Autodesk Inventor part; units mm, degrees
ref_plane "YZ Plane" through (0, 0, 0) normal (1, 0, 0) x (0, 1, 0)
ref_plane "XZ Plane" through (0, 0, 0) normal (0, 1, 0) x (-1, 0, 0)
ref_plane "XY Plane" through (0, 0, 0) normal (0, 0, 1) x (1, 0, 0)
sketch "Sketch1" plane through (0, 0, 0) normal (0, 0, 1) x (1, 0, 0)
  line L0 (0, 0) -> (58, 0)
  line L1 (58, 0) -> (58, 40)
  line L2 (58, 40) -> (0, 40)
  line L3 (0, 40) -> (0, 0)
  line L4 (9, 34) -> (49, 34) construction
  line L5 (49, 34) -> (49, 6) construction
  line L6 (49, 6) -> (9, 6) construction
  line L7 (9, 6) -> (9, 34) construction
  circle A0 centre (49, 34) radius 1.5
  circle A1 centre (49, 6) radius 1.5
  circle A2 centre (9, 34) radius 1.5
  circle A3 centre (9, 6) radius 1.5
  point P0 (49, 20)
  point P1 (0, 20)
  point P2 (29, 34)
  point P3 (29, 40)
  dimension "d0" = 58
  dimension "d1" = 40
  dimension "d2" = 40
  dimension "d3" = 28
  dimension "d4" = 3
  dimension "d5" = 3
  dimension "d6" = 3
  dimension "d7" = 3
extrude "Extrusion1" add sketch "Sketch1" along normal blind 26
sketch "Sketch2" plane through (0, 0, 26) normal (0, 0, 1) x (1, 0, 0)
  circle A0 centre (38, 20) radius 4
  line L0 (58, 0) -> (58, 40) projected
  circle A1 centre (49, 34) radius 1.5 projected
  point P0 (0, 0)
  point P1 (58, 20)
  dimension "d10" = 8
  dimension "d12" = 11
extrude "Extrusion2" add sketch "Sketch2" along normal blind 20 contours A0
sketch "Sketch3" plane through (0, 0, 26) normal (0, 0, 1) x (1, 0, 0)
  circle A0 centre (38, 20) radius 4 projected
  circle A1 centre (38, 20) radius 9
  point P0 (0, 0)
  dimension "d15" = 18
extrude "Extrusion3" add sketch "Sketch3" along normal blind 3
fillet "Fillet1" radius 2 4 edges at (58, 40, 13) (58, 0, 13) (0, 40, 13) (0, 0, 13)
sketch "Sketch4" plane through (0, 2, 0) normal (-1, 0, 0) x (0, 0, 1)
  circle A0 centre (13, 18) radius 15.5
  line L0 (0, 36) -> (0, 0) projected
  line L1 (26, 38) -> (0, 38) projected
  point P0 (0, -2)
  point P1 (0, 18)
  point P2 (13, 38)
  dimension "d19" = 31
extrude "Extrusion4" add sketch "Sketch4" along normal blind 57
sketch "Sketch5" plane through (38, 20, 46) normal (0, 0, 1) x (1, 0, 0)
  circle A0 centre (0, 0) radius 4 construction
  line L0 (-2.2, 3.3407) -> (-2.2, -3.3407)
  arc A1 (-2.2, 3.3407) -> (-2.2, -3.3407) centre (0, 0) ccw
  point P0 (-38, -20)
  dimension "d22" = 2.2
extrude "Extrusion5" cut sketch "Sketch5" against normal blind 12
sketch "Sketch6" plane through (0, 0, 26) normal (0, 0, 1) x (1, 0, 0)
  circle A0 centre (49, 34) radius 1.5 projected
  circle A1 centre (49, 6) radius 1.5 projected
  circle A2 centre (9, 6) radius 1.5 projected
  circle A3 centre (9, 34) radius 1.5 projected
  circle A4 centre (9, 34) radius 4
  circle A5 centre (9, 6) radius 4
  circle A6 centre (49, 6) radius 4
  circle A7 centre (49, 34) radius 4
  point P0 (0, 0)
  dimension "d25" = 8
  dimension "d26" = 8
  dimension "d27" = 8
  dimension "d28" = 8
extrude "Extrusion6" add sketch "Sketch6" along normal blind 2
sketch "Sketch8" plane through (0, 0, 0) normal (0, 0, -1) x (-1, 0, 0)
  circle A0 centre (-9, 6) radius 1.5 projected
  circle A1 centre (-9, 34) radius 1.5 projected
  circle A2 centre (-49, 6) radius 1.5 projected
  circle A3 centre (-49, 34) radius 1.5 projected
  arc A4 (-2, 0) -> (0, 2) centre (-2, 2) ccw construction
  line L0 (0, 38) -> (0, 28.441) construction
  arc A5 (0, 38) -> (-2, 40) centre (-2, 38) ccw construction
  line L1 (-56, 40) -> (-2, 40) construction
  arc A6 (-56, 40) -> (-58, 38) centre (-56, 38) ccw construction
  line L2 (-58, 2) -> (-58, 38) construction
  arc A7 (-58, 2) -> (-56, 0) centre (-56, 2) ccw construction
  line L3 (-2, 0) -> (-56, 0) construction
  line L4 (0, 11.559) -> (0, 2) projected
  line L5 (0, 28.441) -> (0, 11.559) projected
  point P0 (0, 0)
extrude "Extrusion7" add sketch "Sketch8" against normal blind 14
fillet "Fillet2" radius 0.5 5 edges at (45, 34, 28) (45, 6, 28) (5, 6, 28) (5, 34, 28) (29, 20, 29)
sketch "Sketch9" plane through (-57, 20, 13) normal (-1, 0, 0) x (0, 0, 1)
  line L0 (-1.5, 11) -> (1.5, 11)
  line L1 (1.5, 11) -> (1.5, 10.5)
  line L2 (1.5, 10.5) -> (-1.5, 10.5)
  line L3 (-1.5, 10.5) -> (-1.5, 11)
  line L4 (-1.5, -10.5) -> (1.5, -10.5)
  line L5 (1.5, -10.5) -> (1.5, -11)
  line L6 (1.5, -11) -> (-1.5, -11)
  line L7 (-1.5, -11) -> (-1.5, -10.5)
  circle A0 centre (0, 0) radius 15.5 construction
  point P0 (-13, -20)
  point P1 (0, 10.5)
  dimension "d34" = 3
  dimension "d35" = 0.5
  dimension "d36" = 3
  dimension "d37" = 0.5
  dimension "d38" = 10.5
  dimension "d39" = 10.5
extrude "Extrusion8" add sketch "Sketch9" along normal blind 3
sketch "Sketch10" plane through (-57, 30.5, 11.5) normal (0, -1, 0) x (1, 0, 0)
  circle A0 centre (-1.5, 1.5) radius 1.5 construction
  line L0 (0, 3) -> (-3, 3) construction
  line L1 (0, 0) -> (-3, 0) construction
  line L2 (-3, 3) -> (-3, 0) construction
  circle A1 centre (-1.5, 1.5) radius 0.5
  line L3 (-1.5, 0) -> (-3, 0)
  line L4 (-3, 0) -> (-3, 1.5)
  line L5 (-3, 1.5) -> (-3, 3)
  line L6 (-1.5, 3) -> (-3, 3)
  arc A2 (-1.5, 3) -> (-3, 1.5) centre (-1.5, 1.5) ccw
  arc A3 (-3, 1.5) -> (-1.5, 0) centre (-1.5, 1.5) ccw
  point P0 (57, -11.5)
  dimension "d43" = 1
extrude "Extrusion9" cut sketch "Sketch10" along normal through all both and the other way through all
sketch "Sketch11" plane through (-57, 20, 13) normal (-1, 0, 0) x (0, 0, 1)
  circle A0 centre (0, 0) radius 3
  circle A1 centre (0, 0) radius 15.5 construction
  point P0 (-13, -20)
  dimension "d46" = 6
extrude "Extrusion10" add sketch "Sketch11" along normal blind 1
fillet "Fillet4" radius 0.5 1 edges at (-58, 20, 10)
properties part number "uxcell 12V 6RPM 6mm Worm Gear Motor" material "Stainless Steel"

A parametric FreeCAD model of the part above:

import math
import FreeCAD as App
import Part
import Sketcher

V = App.Vector
Q = App.Units.Quantity


def edges_at(feature, points):
    """Names of the edges that pass closest to the given points."""
    edges = feature.Shape.Edges
    near = lambda p: min(range(len(edges)), key=lambda i: edges[i].distToShape(Part.Vertex(*p))[0])
    return sorted({f"Edge{near(p) + 1}" for p in points})


def add_polygon(sketch, points):
    """Adds a closed chain of lines whose ends are joined by coincident constraints."""
    first, n = sketch.GeometryCount, len(points)
    for a, b in zip(points, points[1:] + points[:1]):
        sketch.addGeometry(Part.LineSegment(App.Vector(*a, 0), App.Vector(*b, 0)), False)
    for i in range(n):
        sketch.addConstraint(Sketcher.Constraint("Coincident", first + i, 2, first + (i + 1) % n, 1))

doc = App.newDocument("Part")
body = doc.addObject("PartDesign::Body", "Body")

sketch1 = doc.addObject("Sketcher::SketchObject", "Sketch")
body.addObject(sketch1)
sketch1.AttachmentSupport = (doc.XY_Plane, [""])
sketch1.MapMode = "FlatFace"
add_polygon(sketch1, [(0, 40), (0, 0), (58, 0), (58, 40)])
sketch1.addGeometry(Part.Circle(V(9, 6, 0), V(0, 0, 1), 1.5), False)
sketch1.addGeometry(Part.Circle(V(49, 6, 0), V(0, 0, 1), 1.5), False)
sketch1.addGeometry(Part.Circle(V(9, 34, 0), V(0, 0, 1), 1.5), False)
sketch1.addGeometry(Part.Circle(V(49, 34, 0), V(0, 0, 1), 1.5), False)
sketch1.addConstraint(Sketcher.Constraint("Vertical", 0))
sketch1.addConstraint(Sketcher.Constraint("Horizontal", 1))
sketch1.addConstraint(Sketcher.Constraint("Vertical", 2))
sketch1.addConstraint(Sketcher.Constraint("Horizontal", 3))
sketch1.addConstraint(Sketcher.Constraint("Coincident", 0, 2, -1, 1))
sketch1.addConstraint(Sketcher.Constraint("Equal", 4, 5))
sketch1.addConstraint(Sketcher.Constraint("Equal", 5, 6))
sketch1.addConstraint(Sketcher.Constraint("Equal", 6, 7))
sketch1.addConstraint(Sketcher.Constraint("Horizontal", 4, 3, 5, 3))
sketch1.addConstraint(Sketcher.Constraint("Horizontal", 6, 3, 7, 3))
sketch1.addConstraint(Sketcher.Constraint("Vertical", 4, 3, 6, 3))
sketch1.addConstraint(Sketcher.Constraint("Vertical", 5, 3, 7, 3))
sketch1.addConstraint(Sketcher.Constraint("Diameter", 4, Q("3 mm")))
sketch1.addConstraint(Sketcher.Constraint("DistanceX", 1, 1, 1, 2, Q("58 mm")))
sketch1.addConstraint(Sketcher.Constraint("DistanceY", 0, 2, 0, 1, Q("40 mm")))
sketch1.addConstraint(Sketcher.Constraint("DistanceX", 4, 3, 5, 3, Q("40 mm")))
sketch1.addConstraint(Sketcher.Constraint("DistanceY", 4, 3, 6, 3, Q("28 mm")))
sketch1.addConstraint(Sketcher.Constraint("DistanceX", -1, 1, 4, 3, Q("9 mm")))
sketch1.addConstraint(Sketcher.Constraint("DistanceY", -1, 1, 4, 3, Q("6 mm")))
pad1 = doc.addObject("PartDesign::Pad", "Pad")
body.addObject(pad1)
pad1.Profile = sketch1
pad1.Length = 26

sketch2 = doc.addObject("Sketcher::SketchObject", "Sketch001")
body.addObject(sketch2)
sketch2.AttachmentSupport = (doc.XY_Plane, [""])
sketch2.MapMode = "FlatFace"
sketch2.AttachmentOffset = App.Placement(V(0, 0, 26), App.Rotation())
sketch2.addGeometry(Part.Circle(V(38, 20, 0), V(0, 0, 1), 4), False)
sketch2.addConstraint(Sketcher.Constraint("Diameter", 0, Q("8 mm")))
sketch2.addConstraint(Sketcher.Constraint("DistanceX", -1, 1, 0, 3, Q("38 mm")))
sketch2.addConstraint(Sketcher.Constraint("DistanceY", -1, 1, 0, 3, Q("20 mm")))
pad2 = doc.addObject("PartDesign::Pad", "Pad001")
body.addObject(pad2)
pad2.Profile = sketch2
pad2.Length = 20

sketch3 = doc.addObject("Sketcher::SketchObject", "Sketch002")
body.addObject(sketch3)
sketch3.AttachmentSupport = (doc.XY_Plane, [""])
sketch3.MapMode = "FlatFace"
sketch3.AttachmentOffset = App.Placement(V(0, 0, 26), App.Rotation())
sketch3.addGeometry(Part.Circle(V(38, 20, 0), V(0, 0, 1), 9), False)
sketch3.addGeometry(Part.Circle(V(38, 20, 0), V(0, 0, 1), 4), False)
sketch3.addConstraint(Sketcher.Constraint("Coincident", 1, 3, 0, 3))
sketch3.addConstraint(Sketcher.Constraint("Diameter", 0, Q("18 mm")))
sketch3.addConstraint(Sketcher.Constraint("Diameter", 1, Q("8 mm")))
sketch3.addConstraint(Sketcher.Constraint("DistanceX", -1, 1, 0, 3, Q("38 mm")))
sketch3.addConstraint(Sketcher.Constraint("DistanceY", -1, 1, 0, 3, Q("20 mm")))
pad3 = doc.addObject("PartDesign::Pad", "Pad002")
body.addObject(pad3)
pad3.Profile = sketch3
pad3.Length = 3
doc.recompute()

fillet = doc.addObject("PartDesign::Fillet", "Fillet")
body.addObject(fillet)
fillet.Base = (pad3, edges_at(pad3, [
    (58, 40, 13),
    (58, 0, 13),
    (0, 40, 13),
    (0, 0, 13),
]))
fillet.Radius = 2

sketch4 = doc.addObject("Sketcher::SketchObject", "Sketch003")
body.addObject(sketch4)
sketch4.AttachmentSupport = (doc.YZ_Plane, [""])
sketch4.MapMode = "FlatFace"
sketch4.addGeometry(Part.Circle(V(20, 13, 0), V(0, 0, 1), 15.5), False)
sketch4.addConstraint(Sketcher.Constraint("Diameter", 0, Q("31 mm")))
sketch4.addConstraint(Sketcher.Constraint("DistanceX", -1, 1, 0, 3, Q("20 mm")))
sketch4.addConstraint(Sketcher.Constraint("DistanceY", -1, 1, 0, 3, Q("13 mm")))
pad4 = doc.addObject("PartDesign::Pad", "Pad003")
body.addObject(pad4)
pad4.Profile = sketch4
pad4.Length = 57
pad4.Reversed = True

sketch5 = doc.addObject("Sketcher::SketchObject", "Sketch004")
body.addObject(sketch5)
sketch5.AttachmentSupport = (doc.XY_Plane, [""])
sketch5.MapMode = "FlatFace"
sketch5.AttachmentOffset = App.Placement(V(0, 0, 46), App.Rotation())
sketch5.addGeometry(Part.LineSegment(V(35.8, 16.6593, 0), V(35.8, 23.3407, 0)), False)
sketch5.addGeometry(Part.ArcOfCircle(Part.Circle(V(38, 20, 0), V(0, 0, 1), 4.000035), math.radians(123.366687), math.radians(236.633313)), False)
sketch5.addConstraint(Sketcher.Constraint("Coincident", 0, 1, 1, 2))
sketch5.addConstraint(Sketcher.Constraint("Coincident", 1, 1, 0, 2))
sketch5.addConstraint(Sketcher.Constraint("Vertical", 0))
sketch5.addConstraint(Sketcher.Constraint("Radius", 1, Q("4 mm")))
sketch5.addConstraint(Sketcher.Constraint("DistanceX", 0, 1, 1, 3, Q("2.2 mm")))
sketch5.addConstraint(Sketcher.Constraint("DistanceX", -1, 1, 1, 3, Q("38 mm")))
sketch5.addConstraint(Sketcher.Constraint("DistanceY", -1, 1, 1, 3, Q("20 mm")))
pocket1 = doc.addObject("PartDesign::Pocket", "Pocket")
body.addObject(pocket1)
pocket1.Profile = sketch5
pocket1.Length = 12

sketch6 = doc.addObject("Sketcher::SketchObject", "Sketch005")
body.addObject(sketch6)
sketch6.AttachmentSupport = (doc.XY_Plane, [""])
sketch6.MapMode = "FlatFace"
sketch6.AttachmentOffset = App.Placement(V(0, 0, 26), App.Rotation())
sketch6.addGeometry(Part.Circle(V(9, 34, 0), V(0, 0, 1), 4), False)
sketch6.addGeometry(Part.Circle(V(9, 34, 0), V(0, 0, 1), 1.5), False)
sketch6.addGeometry(Part.Circle(V(9, 6, 0), V(0, 0, 1), 4), False)
sketch6.addGeometry(Part.Circle(V(9, 6, 0), V(0, 0, 1), 1.5), False)
sketch6.addGeometry(Part.Circle(V(49, 6, 0), V(0, 0, 1), 4), False)
sketch6.addGeometry(Part.Circle(V(49, 6, 0), V(0, 0, 1), 1.5), False)
sketch6.addGeometry(Part.Circle(V(49, 34, 0), V(0, 0, 1), 4), False)
sketch6.addGeometry(Part.Circle(V(49, 34, 0), V(0, 0, 1), 1.5), False)
sketch6.addConstraint(Sketcher.Constraint("Coincident", 1, 3, 0, 3))
sketch6.addConstraint(Sketcher.Constraint("Coincident", 3, 3, 2, 3))
sketch6.addConstraint(Sketcher.Constraint("Coincident", 5, 3, 4, 3))
sketch6.addConstraint(Sketcher.Constraint("Coincident", 7, 3, 6, 3))
sketch6.addConstraint(Sketcher.Constraint("Equal", 0, 2))
sketch6.addConstraint(Sketcher.Constraint("Equal", 1, 3))
sketch6.addConstraint(Sketcher.Constraint("Equal", 2, 4))
sketch6.addConstraint(Sketcher.Constraint("Equal", 3, 5))
sketch6.addConstraint(Sketcher.Constraint("Equal", 4, 6))
sketch6.addConstraint(Sketcher.Constraint("Equal", 5, 7))
sketch6.addConstraint(Sketcher.Constraint("Horizontal", 3, 3, 4, 3))
sketch6.addConstraint(Sketcher.Constraint("Horizontal", 1, 3, 6, 3))
sketch6.addConstraint(Sketcher.Constraint("Vertical", 1, 3, 2, 3))
sketch6.addConstraint(Sketcher.Constraint("Vertical", 5, 3, 6, 3))
sketch6.addConstraint(Sketcher.Constraint("Diameter", 0, Q("8 mm")))
sketch6.addConstraint(Sketcher.Constraint("Diameter", 1, Q("3 mm")))
sketch6.addConstraint(Sketcher.Constraint("DistanceX", -1, 1, 0, 3, Q("9 mm")))
sketch6.addConstraint(Sketcher.Constraint("DistanceY", -1, 1, 0, 3, Q("34 mm")))
sketch6.addConstraint(Sketcher.Constraint("DistanceY", -1, 1, 2, 3, Q("6 mm")))
sketch6.addConstraint(Sketcher.Constraint("DistanceX", -1, 1, 4, 3, Q("49 mm")))
pad5 = doc.addObject("PartDesign::Pad", "Pad004")
body.addObject(pad5)
pad5.Profile = sketch6
pad5.Length = 2

sketch7 = doc.addObject("Sketcher::SketchObject", "Sketch006")
body.addObject(sketch7)
sketch7.AttachmentSupport = (doc.XY_Plane, [""])
sketch7.MapMode = "FlatFace"
sketch7.addGeometry(Part.Circle(V(9, 6, 0), V(0, 0, 1), 1.5), False)
sketch7.addGeometry(Part.Circle(V(9, 34, 0), V(0, 0, 1), 1.5), False)
sketch7.addGeometry(Part.Circle(V(49, 6, 0), V(0, 0, 1), 1.5), False)
sketch7.addGeometry(Part.Circle(V(49, 34, 0), V(0, 0, 1), 1.5), False)
sketch7.addConstraint(Sketcher.Constraint("Equal", 0, 1))
sketch7.addConstraint(Sketcher.Constraint("Equal", 1, 2))
sketch7.addConstraint(Sketcher.Constraint("Equal", 2, 3))
sketch7.addConstraint(Sketcher.Constraint("Horizontal", 0, 3, 2, 3))
sketch7.addConstraint(Sketcher.Constraint("Horizontal", 1, 3, 3, 3))
sketch7.addConstraint(Sketcher.Constraint("Vertical", 0, 3, 1, 3))
sketch7.addConstraint(Sketcher.Constraint("Vertical", 2, 3, 3, 3))
sketch7.addConstraint(Sketcher.Constraint("Diameter", 0, Q("3 mm")))
sketch7.addConstraint(Sketcher.Constraint("DistanceX", -1, 1, 0, 3, Q("9 mm")))
sketch7.addConstraint(Sketcher.Constraint("DistanceY", -1, 1, 0, 3, Q("6 mm")))
sketch7.addConstraint(Sketcher.Constraint("DistanceY", -1, 1, 1, 3, Q("34 mm")))
sketch7.addConstraint(Sketcher.Constraint("DistanceX", -1, 1, 2, 3, Q("49 mm")))
pad6 = doc.addObject("PartDesign::Pad", "Pad005")
body.addObject(pad6)
pad6.Profile = sketch7
pad6.Length = 14
doc.recompute()

fillet2 = doc.addObject("PartDesign::Fillet", "Fillet001")
body.addObject(fillet2)
fillet2.Base = (pad6, edges_at(pad6, [
    (45, 34, 28),
    (45, 6, 28),
    (5, 6, 28),
    (5, 34, 28),
    (29, 20, 29),
]))
fillet2.Radius = 0.5

sketch8 = doc.addObject("Sketcher::SketchObject", "Sketch007")
body.addObject(sketch8)
sketch8.AttachmentSupport = (doc.YZ_Plane, [""])
sketch8.MapMode = "FlatFace"
sketch8.AttachmentOffset = App.Placement(V(0, 0, -57), App.Rotation())
add_polygon(sketch8, [(31, 14.5), (31, 11.5), (30.5, 11.5), (30.5, 14.5)])
add_polygon(sketch8, [(9.5, 14.5), (9.5, 11.5), (9, 11.5), (9, 14.5)])
sketch8.addConstraint(Sketcher.Constraint("Vertical", 0))
sketch8.addConstraint(Sketcher.Constraint("Horizontal", 1))
sketch8.addConstraint(Sketcher.Constraint("Vertical", 2))
sketch8.addConstraint(Sketcher.Constraint("Horizontal", 3))
sketch8.addConstraint(Sketcher.Constraint("Vertical", 4))
sketch8.addConstraint(Sketcher.Constraint("Horizontal", 5))
sketch8.addConstraint(Sketcher.Constraint("Vertical", 6))
sketch8.addConstraint(Sketcher.Constraint("Horizontal", 7))
sketch8.addConstraint(Sketcher.Constraint("Horizontal", 1, 2, 4, 2))
sketch8.addConstraint(Sketcher.Constraint("Horizontal", 3, 2, 6, 2))
sketch8.addConstraint(Sketcher.Constraint("Equal", 3, 5))
sketch8.addConstraint(Sketcher.Constraint("DistanceY", 0, 2, 0, 1, Q("3 mm")))
sketch8.addConstraint(Sketcher.Constraint("DistanceX", 1, 2, 1, 1, Q("0.5 mm")))
sketch8.addConstraint(Sketcher.Constraint("DistanceX", -1, 1, 0, 2, Q("31 mm")))
sketch8.addConstraint(Sketcher.Constraint("DistanceX", -1, 1, 5, 2, Q("9 mm")))
sketch8.addConstraint(Sketcher.Constraint("DistanceY", -1, 1, 0, 2, Q("11.5 mm")))
pad7 = doc.addObject("PartDesign::Pad", "Pad006")
body.addObject(pad7)
pad7.Profile = sketch8
pad7.Length = 3
pad7.Reversed = True

sketch9 = doc.addObject("Sketcher::SketchObject", "Sketch008")
body.addObject(sketch9)
sketch9.AttachmentSupport = (doc.XZ_Plane, [""])
sketch9.MapMode = "FlatFace"
sketch9.AttachmentOffset = App.Placement(V(0, 0, -30.5), App.Rotation())
sketch9.addGeometry(Part.Circle(V(-58.5, 13, 0), V(0, 0, 1), 0.5), False)
sketch9.addGeometry(Part.LineSegment(V(-60, 14.5, 0), V(-60, 13, 0)), False)
sketch9.addGeometry(Part.ArcOfCircle(Part.Circle(V(-58.5, 13, 0), V(0, 0, 1), 1.5), math.radians(90), math.radians(180)), False)
sketch9.addGeometry(Part.LineSegment(V(-58.5, 14.5, 0), V(-60, 14.5, 0)), False)
sketch9.addGeometry(Part.LineSegment(V(-60, 11.5, 0), V(-58.5, 11.5, 0)), False)
sketch9.addGeometry(Part.ArcOfCircle(Part.Circle(V(-58.5, 13, 0), V(0, 0, 1), 1.5), math.radians(180), math.radians(270)), False)
sketch9.addGeometry(Part.LineSegment(V(-60, 13, 0), V(-60, 11.5, 0)), False)
sketch9.addConstraint(Sketcher.Constraint("Tangent", 1, 2, 2, 2))
sketch9.addConstraint(Sketcher.Constraint("Tangent", 2, 1, 3, 1))
sketch9.addConstraint(Sketcher.Constraint("Coincident", 3, 2, 1, 1))
sketch9.addConstraint(Sketcher.Constraint("Tangent", 4, 2, 5, 2))
sketch9.addConstraint(Sketcher.Constraint("Tangent", 5, 1, 6, 1))
sketch9.addConstraint(Sketcher.Constraint("Coincident", 6, 2, 4, 1))
sketch9.addConstraint(Sketcher.Constraint("Vertical", 1))
sketch9.addConstraint(Sketcher.Constraint("Horizontal", 3))
sketch9.addConstraint(Sketcher.Constraint("Horizontal", 4))
sketch9.addConstraint(Sketcher.Constraint("Vertical", 6))
sketch9.addConstraint(Sketcher.Constraint("Coincident", 2, 3, 0, 3))
sketch9.addConstraint(Sketcher.Constraint("Coincident", 5, 3, 0, 3))
sketch9.addConstraint(Sketcher.Constraint("Equal", 2, 5))
sketch9.addConstraint(Sketcher.Constraint("Diameter", 0, Q("1 mm")))
sketch9.addConstraint(Sketcher.Constraint("Radius", 2, Q("1.5 mm")))
sketch9.addConstraint(Sketcher.Constraint("DistanceY", -1, 1, 0, 3, Q("13 mm")))
sketch9.addConstraint(Sketcher.Constraint("DistanceX", 1, 2, -1, 1, Q("60 mm")))
pocket2 = doc.addObject("PartDesign::Pocket", "Pocket001")
body.addObject(pocket2)
pocket2.Profile = sketch9
pocket2.Type = "ThroughAll"
pocket2.Midplane = True

sketch10 = doc.addObject("Sketcher::SketchObject", "Sketch009")
body.addObject(sketch10)
sketch10.AttachmentSupport = (doc.YZ_Plane, [""])
sketch10.MapMode = "FlatFace"
sketch10.AttachmentOffset = App.Placement(V(0, 0, -57), App.Rotation())
sketch10.addGeometry(Part.Circle(V(20, 13, 0), V(0, 0, 1), 3), False)
sketch10.addConstraint(Sketcher.Constraint("Diameter", 0, Q("6 mm")))
sketch10.addConstraint(Sketcher.Constraint("DistanceX", -1, 1, 0, 3, Q("20 mm")))
sketch10.addConstraint(Sketcher.Constraint("DistanceY", -1, 1, 0, 3, Q("13 mm")))
pad8 = doc.addObject("PartDesign::Pad", "Pad007")
body.addObject(pad8)
pad8.Profile = sketch10
pad8.Length = 1
pad8.Reversed = True
doc.recompute()

fillet3 = doc.addObject("PartDesign::Fillet", "Fillet002")
body.addObject(fillet3)
fillet3.Base = (pad8, edges_at(pad8, [(-58, 20, 10)]))
fillet3.Radius = 0.5

doc.recompute()
